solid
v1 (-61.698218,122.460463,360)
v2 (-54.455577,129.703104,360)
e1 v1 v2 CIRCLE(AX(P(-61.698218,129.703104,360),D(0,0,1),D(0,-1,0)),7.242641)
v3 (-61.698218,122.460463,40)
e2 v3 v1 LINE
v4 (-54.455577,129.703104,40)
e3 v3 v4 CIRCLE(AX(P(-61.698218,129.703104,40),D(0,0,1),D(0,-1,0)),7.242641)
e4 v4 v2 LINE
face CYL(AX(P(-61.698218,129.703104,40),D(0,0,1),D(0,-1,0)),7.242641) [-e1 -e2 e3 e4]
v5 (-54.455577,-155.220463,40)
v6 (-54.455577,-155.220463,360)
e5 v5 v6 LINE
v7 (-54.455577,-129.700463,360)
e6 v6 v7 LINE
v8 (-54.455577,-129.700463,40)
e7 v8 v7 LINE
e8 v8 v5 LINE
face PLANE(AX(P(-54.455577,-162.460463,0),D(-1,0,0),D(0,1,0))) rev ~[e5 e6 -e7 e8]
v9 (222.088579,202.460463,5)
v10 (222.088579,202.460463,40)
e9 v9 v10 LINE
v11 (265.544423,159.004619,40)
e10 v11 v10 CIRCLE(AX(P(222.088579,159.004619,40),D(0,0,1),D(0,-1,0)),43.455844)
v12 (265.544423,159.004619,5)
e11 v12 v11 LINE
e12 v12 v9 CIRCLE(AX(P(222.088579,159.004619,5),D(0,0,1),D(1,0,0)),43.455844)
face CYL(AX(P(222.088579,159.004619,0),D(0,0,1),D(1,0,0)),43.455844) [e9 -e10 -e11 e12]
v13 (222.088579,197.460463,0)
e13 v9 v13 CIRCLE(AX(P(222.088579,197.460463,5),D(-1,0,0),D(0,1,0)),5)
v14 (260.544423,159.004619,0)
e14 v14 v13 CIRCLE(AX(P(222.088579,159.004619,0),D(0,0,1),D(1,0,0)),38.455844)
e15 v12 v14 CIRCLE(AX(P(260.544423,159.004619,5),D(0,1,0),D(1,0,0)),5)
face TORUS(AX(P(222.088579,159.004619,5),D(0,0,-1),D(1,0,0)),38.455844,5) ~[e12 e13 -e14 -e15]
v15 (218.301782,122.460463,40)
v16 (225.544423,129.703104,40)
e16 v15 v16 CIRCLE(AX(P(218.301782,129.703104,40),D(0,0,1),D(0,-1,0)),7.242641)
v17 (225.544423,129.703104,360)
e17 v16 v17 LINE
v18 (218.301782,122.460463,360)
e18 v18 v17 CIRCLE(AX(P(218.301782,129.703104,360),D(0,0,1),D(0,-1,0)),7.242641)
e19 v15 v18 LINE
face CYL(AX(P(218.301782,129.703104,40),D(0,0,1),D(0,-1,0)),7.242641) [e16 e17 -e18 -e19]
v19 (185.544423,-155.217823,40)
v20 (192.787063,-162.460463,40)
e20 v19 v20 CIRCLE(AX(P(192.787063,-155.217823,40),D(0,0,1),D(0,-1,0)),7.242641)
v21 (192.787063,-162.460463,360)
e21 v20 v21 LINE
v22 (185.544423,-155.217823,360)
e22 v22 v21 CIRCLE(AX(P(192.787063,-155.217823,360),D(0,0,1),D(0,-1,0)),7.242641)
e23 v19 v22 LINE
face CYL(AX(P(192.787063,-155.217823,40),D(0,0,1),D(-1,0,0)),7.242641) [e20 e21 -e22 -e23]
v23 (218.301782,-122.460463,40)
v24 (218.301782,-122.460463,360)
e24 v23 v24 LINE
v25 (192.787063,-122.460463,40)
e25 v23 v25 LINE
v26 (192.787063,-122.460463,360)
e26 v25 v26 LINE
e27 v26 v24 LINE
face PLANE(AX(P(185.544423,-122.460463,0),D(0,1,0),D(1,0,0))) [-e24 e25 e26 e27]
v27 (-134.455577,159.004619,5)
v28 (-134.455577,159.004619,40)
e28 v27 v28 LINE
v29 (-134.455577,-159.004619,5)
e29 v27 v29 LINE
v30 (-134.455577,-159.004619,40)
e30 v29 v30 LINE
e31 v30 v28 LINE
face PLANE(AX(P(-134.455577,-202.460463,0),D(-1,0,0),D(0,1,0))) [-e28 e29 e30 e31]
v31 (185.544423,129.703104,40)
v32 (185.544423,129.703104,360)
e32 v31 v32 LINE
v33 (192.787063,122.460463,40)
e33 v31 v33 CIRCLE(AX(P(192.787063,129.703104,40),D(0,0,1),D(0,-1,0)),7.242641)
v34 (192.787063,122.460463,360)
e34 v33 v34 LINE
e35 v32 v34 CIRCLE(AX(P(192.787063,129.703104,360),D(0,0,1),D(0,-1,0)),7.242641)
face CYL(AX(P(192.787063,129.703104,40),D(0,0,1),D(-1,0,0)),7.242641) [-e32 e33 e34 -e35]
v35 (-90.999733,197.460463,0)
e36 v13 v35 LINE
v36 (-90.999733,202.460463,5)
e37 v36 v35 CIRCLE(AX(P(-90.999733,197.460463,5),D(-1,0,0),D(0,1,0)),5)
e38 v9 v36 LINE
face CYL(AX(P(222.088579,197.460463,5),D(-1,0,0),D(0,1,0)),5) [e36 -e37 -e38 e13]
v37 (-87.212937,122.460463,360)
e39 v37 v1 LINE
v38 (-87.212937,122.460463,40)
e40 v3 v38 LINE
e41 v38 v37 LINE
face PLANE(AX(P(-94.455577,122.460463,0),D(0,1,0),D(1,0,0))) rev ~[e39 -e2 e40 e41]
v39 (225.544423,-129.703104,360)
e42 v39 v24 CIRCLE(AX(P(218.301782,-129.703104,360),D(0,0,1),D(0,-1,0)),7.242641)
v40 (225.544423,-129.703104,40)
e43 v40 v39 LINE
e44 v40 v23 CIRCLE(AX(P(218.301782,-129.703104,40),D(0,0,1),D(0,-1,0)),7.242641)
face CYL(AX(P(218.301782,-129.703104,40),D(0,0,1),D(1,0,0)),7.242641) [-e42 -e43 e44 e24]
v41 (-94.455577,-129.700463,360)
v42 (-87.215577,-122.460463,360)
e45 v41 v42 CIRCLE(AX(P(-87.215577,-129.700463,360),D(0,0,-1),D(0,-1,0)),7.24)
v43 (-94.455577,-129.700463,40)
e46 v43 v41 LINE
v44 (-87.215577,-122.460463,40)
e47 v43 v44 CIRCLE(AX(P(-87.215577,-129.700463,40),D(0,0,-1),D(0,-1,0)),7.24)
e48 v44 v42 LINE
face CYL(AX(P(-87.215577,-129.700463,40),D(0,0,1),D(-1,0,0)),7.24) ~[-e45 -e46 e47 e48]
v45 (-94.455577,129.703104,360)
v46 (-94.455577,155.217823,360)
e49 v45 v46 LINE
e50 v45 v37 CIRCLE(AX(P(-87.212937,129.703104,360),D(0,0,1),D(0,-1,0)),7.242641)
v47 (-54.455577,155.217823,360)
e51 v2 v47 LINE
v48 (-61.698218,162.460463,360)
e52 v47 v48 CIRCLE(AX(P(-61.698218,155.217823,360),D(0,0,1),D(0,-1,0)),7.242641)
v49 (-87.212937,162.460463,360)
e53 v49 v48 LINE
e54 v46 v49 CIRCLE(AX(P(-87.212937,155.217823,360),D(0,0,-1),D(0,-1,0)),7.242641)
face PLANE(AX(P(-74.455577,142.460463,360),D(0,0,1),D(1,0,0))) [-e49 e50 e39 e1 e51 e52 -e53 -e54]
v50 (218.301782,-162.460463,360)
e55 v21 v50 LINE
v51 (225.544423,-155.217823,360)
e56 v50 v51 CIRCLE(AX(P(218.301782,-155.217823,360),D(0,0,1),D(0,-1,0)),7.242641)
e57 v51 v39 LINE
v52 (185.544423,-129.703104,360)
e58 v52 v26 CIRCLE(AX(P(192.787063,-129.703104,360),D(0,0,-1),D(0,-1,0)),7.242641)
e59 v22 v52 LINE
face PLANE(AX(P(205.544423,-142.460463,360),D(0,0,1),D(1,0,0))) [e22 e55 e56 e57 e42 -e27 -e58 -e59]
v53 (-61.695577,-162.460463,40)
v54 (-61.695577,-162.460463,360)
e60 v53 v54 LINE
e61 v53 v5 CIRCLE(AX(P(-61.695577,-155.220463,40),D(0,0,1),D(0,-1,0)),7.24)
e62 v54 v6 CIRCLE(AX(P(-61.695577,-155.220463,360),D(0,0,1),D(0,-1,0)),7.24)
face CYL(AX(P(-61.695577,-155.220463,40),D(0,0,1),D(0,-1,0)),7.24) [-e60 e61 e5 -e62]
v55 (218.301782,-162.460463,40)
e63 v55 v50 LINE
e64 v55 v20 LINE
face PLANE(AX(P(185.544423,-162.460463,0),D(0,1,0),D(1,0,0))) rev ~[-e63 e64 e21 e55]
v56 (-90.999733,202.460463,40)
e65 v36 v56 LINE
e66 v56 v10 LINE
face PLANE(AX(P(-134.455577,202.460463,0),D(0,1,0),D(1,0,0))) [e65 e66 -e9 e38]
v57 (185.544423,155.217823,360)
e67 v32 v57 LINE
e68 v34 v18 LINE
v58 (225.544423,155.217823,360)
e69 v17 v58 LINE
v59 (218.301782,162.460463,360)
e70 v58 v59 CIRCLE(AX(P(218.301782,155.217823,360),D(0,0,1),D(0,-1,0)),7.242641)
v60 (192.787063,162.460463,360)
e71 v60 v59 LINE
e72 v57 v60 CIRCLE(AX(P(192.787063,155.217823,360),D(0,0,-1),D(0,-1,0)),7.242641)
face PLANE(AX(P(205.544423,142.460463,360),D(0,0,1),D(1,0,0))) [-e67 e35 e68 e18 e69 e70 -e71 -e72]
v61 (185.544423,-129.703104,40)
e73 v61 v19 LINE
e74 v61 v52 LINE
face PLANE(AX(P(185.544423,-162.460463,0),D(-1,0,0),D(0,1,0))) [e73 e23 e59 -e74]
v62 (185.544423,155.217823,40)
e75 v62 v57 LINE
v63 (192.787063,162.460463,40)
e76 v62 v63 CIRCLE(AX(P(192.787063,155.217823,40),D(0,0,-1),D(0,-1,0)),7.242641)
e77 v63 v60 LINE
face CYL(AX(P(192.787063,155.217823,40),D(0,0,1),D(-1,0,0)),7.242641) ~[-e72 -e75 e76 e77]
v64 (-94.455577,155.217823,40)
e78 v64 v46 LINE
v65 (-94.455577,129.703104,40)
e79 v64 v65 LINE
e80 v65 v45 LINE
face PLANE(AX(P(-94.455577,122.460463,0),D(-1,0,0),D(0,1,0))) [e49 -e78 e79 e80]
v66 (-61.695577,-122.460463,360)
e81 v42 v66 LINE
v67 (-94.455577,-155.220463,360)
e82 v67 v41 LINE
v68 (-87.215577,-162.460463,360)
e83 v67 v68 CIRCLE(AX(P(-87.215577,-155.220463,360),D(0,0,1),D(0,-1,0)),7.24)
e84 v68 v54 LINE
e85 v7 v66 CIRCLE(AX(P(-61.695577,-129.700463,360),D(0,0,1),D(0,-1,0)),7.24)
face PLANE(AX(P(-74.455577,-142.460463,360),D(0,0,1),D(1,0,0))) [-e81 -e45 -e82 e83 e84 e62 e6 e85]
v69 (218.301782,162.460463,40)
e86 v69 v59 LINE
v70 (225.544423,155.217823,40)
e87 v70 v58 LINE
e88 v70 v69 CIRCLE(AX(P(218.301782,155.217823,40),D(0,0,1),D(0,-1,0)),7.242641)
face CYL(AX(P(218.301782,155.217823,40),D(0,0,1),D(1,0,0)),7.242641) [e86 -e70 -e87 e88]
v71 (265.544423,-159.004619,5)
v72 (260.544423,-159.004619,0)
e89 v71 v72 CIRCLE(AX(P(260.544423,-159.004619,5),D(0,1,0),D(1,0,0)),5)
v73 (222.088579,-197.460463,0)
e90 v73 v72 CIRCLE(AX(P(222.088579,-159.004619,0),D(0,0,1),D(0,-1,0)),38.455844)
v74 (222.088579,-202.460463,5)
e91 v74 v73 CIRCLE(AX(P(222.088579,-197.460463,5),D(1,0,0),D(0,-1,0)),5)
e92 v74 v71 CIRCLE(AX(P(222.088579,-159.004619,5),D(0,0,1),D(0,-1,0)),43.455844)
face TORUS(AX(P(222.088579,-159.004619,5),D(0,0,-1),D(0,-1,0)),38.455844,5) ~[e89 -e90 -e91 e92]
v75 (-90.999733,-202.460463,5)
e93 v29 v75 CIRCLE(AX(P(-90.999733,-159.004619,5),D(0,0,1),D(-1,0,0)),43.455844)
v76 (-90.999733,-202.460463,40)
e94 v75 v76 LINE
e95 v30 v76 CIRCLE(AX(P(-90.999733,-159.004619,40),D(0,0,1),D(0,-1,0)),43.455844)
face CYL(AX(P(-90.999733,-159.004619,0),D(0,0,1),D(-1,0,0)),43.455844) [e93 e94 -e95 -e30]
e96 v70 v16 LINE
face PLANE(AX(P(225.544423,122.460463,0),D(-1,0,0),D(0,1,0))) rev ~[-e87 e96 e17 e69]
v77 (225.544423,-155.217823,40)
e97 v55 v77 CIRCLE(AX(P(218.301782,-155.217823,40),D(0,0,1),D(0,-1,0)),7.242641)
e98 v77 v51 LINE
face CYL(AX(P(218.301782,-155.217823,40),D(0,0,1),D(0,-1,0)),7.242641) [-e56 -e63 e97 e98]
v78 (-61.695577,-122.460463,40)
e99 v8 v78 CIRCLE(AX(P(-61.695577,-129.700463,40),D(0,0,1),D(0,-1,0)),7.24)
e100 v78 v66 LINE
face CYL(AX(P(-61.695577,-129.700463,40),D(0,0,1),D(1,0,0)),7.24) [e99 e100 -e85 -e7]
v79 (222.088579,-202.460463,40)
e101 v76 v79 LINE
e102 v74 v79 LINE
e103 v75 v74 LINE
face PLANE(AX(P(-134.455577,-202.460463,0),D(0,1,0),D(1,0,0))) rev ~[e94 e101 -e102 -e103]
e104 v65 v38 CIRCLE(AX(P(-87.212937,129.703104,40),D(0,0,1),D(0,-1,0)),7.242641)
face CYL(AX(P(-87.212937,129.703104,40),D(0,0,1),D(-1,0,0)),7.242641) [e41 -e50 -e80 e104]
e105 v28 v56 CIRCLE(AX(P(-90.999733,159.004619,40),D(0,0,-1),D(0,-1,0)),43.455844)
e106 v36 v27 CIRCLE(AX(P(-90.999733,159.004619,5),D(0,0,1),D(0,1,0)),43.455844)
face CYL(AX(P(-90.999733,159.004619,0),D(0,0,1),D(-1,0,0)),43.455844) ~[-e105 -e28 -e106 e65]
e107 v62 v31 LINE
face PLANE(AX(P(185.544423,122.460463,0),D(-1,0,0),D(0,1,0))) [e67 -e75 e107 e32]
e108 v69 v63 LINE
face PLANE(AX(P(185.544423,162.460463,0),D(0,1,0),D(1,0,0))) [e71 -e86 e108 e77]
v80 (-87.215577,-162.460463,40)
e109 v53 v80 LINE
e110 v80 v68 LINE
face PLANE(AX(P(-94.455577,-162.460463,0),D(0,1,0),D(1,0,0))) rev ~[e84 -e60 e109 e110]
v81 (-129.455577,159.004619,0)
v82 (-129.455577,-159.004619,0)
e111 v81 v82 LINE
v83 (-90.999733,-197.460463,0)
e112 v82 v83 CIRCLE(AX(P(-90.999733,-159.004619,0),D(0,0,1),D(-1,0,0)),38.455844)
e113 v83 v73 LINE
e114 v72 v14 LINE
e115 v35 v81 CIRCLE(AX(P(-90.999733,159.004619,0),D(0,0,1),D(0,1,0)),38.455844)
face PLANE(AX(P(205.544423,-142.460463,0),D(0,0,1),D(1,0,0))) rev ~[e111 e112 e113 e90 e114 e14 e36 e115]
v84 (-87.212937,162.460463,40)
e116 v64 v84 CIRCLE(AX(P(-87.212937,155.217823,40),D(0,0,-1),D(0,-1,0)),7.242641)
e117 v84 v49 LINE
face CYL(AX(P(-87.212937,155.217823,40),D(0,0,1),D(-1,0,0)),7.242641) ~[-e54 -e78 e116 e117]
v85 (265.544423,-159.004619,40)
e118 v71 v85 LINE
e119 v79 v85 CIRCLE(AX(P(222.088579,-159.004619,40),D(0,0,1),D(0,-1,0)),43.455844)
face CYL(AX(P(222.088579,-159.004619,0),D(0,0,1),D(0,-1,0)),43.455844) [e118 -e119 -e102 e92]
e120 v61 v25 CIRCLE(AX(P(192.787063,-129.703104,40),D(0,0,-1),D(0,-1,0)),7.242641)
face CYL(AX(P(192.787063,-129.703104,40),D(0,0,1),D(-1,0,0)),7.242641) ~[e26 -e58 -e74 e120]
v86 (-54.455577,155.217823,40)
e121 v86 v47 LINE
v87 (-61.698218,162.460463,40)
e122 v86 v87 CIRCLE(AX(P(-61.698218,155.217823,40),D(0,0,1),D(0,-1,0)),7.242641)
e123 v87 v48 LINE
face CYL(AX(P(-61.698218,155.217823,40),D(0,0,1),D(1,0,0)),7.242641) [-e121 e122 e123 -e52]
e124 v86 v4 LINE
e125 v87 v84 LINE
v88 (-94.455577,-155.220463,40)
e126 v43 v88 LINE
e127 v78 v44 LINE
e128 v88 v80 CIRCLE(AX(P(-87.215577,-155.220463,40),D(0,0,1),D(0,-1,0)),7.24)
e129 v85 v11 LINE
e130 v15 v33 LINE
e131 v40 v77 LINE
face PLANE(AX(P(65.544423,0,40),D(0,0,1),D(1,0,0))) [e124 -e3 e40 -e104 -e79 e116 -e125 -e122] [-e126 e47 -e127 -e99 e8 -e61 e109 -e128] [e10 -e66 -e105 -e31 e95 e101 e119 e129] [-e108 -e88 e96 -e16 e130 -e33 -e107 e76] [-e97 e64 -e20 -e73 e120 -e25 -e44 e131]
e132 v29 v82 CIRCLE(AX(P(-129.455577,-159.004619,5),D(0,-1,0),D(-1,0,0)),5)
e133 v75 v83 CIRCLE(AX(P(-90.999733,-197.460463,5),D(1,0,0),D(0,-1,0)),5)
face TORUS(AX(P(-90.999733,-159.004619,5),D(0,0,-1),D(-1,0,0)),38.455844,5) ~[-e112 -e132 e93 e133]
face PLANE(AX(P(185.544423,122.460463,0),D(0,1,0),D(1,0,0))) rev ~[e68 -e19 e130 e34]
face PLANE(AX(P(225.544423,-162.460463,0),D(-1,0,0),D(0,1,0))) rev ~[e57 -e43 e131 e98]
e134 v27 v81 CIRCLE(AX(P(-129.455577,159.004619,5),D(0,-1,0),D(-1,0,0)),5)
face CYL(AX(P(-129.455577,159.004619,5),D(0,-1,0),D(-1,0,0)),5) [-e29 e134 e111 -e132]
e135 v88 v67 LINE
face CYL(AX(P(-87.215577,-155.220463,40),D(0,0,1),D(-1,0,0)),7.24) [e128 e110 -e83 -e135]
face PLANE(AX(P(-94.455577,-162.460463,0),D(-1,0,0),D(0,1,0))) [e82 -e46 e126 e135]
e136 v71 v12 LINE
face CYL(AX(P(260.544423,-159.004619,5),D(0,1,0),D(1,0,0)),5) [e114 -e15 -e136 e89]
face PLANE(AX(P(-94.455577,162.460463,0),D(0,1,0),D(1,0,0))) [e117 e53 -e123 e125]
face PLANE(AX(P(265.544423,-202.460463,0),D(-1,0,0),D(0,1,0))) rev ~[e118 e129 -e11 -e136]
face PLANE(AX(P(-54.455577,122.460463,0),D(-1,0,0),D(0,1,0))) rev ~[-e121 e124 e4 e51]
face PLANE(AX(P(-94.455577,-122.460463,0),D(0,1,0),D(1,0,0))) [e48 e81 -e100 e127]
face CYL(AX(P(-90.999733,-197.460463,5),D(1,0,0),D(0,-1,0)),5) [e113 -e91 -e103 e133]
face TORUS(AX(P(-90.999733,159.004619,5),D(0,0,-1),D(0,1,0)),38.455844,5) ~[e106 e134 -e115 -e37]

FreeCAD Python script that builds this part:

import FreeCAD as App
import Part
import Sketcher

V = App.Vector


def edges_at(feature, points):
    """Names of the edges that pass closest to the given points."""
    edges = feature.Shape.Edges
    near = lambda p: min(range(len(edges)), key=lambda i: edges[i].distToShape(Part.Vertex(*p))[0])
    return sorted({f"Edge{near(p) + 1}" for p in points})


def add_polygon(sketch, points):
    """Adds a closed chain of lines whose ends are joined by coincident constraints."""
    first, n = sketch.GeometryCount, len(points)
    for a, b in zip(points, points[1:] + points[:1]):
        sketch.addGeometry(Part.LineSegment(App.Vector(*a, 0), App.Vector(*b, 0)), False)
    for i in range(n):
        sketch.addConstraint(Sketcher.Constraint("Coincident", first + i, 2, first + (i + 1) % n, 1))

doc = App.newDocument("Part")
body = doc.addObject("PartDesign::Body", "Body")

# Sketch on XY plane
sketch1 = doc.addObject("Sketcher::SketchObject", "Sketch")
body.addObject(sketch1)
sketch1.AttachmentSupport = (doc.XY_Plane, [""])
sketch1.MapMode = "FlatFace"
add_polygon(sketch1, [(-134, 202), (-134, -202), (266, -202), (266, 202)])  # lines 0-3
sketch1.addConstraint([
    Sketcher.Constraint("Vertical", 0),
    Sketcher.Constraint("Horizontal", 1),
    Sketcher.Constraint("Vertical", 2),
    Sketcher.Constraint("Horizontal", 3),
    Sketcher.Constraint("DistanceX", 1, 1, 1, 2, 400.0),
    Sketcher.Constraint("DistanceY", 0, 2, 0, 1, 404.920927),
    Sketcher.Constraint("DistanceX", 0, 2, -1, 1, 134.455577),
    Sketcher.Constraint("DistanceY", 0, 2, -1, 1, 202.460463),
])
pad1 = doc.addObject("PartDesign::Pad", "Pad")
body.addObject(pad1)
pad1.Profile = sketch1
pad1.Length = 40
doc.recompute()

fillet = doc.addObject("PartDesign::Fillet", "Fillet")
body.addObject(fillet)
fillet.Base = (pad1, edges_at(pad1, [
    (-134.456, -202.46, 20),
    (-134.456, 202.46, 20),
    (265.544, 202.46, 20),
    (265.544, -202.46, 20),
]))
fillet.Radius = 43.455844

# Sketch on XY plane
sketch2 = doc.addObject("Sketcher::SketchObject", "Sketch001")
body.addObject(sketch2)
sketch2.AttachmentSupport = (doc.XY_Plane, [""])
sketch2.MapMode = "FlatFace"
add_polygon(sketch2, [(-94, -122), (-94, -162), (-54, -162), (-54, -122)])  # lines 0-3
sketch2.addConstraint([
    Sketcher.Constraint("Vertical", 0),
    Sketcher.Constraint("Horizontal", 1),
    Sketcher.Constraint("Vertical", 2),
    Sketcher.Constraint("Horizontal", 3),
    Sketcher.Constraint("Equal", 3, 0),
    Sketcher.Constraint("DistanceX", 1, 1, 1, 2, 40.0),
    Sketcher.Constraint("DistanceX", 0, 2, -1, 1, 94.455577),
    Sketcher.Constraint("DistanceY", 0, 2, -1, 1, 162.460463),
])
pad2 = doc.addObject("PartDesign::Pad", "Pad001")
body.addObject(pad2)
pad2.Profile = sketch2
pad2.Length = 360
doc.recompute()

fillet2 = doc.addObject("PartDesign::Fillet", "Fillet001")
body.addObject(fillet2)
fillet2.Base = (pad2, edges_at(pad2, [
    (-54.456, -162.46, 200),
    (-54.456, -122.46, 200),
    (-94.456, -122.46, 200),
    (-94.456, -162.46, 200),
]))
fillet2.Radius = 7.24

# Sketch on XY plane
sketch3 = doc.addObject("Sketcher::SketchObject", "Sketch002")
body.addObject(sketch3)
sketch3.AttachmentSupport = (doc.XY_Plane, [""])
sketch3.MapMode = "FlatFace"
add_polygon(sketch3, [(186, -122), (186, -162), (226, -162), (226, -122)])  # lines 0-3
add_polygon(sketch3, [(186, 162), (186, 122), (226, 122), (226, 162)])  # lines 4-7
add_polygon(sketch3, [(-94, 162), (-94, 122), (-54, 122), (-54, 162)])  # lines 8-11
sketch3.addConstraint([
    Sketcher.Constraint("Vertical", 0),
    Sketcher.Constraint("Horizontal", 1),
    Sketcher.Constraint("Vertical", 2),
    Sketcher.Constraint("Horizontal", 3),
    Sketcher.Constraint("Vertical", 4),
    Sketcher.Constraint("Horizontal", 5),
    Sketcher.Constraint("Vertical", 6),
    Sketcher.Constraint("Horizontal", 7),
    Sketcher.Constraint("Vertical", 8),
    Sketcher.Constraint("Horizontal", 9),
    Sketcher.Constraint("Vertical", 10),
    Sketcher.Constraint("Horizontal", 11),
    Sketcher.Constraint("Symmetric", 3, 2, 4, 2, -1),
    Sketcher.Constraint("Symmetric", 1, 2, 6, 2, -1),
    Sketcher.Constraint("Horizontal", 5, 2, 8, 2),
    Sketcher.Constraint("Horizontal", 7, 2, 10, 2),
    Sketcher.Constraint("Equal", 7, 9),
    Sketcher.Constraint("Equal", 11, 0),
    Sketcher.Constraint("DistanceX", 1, 1, 1, 2, 40.0),
    Sketcher.Constraint("DistanceX", 8, 2, 4, 2, 280.0),
    Sketcher.Constraint("DistanceX", -1, 1, 0, 2, 185.544423),
    Sketcher.Constraint("DistanceY", 0, 2, -1, 1, 162.460463),
])
pad3 = doc.addObject("PartDesign::Pad", "Pad002")
body.addObject(pad3)
pad3.Profile = sketch3
pad3.Length = 360
doc.recompute()

fillet3 = doc.addObject("PartDesign::Fillet", "Fillet002")
body.addObject(fillet3)
fillet3.Base = (pad3, edges_at(pad3, [
    (-54.456, 162.46, 200),
    (-94.456, 162.46, 200),
    (-94.456, 122.46, 200),
    (-54.456, 122.46, 200),
    (225.544, 122.46, 200),
    (225.544, 162.46, 200),
    (185.544, 122.46, 200),
    (185.544, 162.46, 200),
    (225.544, -162.46, 200),
    (225.544, -122.46, 200),
    (185.544, -162.46, 200),
    (185.544, -122.46, 200),
]))
fillet3.Radius = 7.242641
doc.recompute()

fillet4 = doc.addObject("PartDesign::Fillet", "Fillet003")
body.addObject(fillet4)
fillet4.Base = (fillet3, edges_at(fillet3, [
    (265.544, 0, 0),
    (252.817, 189.733, 0),
    (65.544, 202.46, 0),
    (-121.728, 189.733, 0),
    (-134.456, 0, 0),
    (-121.728, -189.733, 0),
    (65.544, -202.46, 0),
    (252.817, -189.733, 0),
]))
fillet4.Radius = 5

doc.recompute()
